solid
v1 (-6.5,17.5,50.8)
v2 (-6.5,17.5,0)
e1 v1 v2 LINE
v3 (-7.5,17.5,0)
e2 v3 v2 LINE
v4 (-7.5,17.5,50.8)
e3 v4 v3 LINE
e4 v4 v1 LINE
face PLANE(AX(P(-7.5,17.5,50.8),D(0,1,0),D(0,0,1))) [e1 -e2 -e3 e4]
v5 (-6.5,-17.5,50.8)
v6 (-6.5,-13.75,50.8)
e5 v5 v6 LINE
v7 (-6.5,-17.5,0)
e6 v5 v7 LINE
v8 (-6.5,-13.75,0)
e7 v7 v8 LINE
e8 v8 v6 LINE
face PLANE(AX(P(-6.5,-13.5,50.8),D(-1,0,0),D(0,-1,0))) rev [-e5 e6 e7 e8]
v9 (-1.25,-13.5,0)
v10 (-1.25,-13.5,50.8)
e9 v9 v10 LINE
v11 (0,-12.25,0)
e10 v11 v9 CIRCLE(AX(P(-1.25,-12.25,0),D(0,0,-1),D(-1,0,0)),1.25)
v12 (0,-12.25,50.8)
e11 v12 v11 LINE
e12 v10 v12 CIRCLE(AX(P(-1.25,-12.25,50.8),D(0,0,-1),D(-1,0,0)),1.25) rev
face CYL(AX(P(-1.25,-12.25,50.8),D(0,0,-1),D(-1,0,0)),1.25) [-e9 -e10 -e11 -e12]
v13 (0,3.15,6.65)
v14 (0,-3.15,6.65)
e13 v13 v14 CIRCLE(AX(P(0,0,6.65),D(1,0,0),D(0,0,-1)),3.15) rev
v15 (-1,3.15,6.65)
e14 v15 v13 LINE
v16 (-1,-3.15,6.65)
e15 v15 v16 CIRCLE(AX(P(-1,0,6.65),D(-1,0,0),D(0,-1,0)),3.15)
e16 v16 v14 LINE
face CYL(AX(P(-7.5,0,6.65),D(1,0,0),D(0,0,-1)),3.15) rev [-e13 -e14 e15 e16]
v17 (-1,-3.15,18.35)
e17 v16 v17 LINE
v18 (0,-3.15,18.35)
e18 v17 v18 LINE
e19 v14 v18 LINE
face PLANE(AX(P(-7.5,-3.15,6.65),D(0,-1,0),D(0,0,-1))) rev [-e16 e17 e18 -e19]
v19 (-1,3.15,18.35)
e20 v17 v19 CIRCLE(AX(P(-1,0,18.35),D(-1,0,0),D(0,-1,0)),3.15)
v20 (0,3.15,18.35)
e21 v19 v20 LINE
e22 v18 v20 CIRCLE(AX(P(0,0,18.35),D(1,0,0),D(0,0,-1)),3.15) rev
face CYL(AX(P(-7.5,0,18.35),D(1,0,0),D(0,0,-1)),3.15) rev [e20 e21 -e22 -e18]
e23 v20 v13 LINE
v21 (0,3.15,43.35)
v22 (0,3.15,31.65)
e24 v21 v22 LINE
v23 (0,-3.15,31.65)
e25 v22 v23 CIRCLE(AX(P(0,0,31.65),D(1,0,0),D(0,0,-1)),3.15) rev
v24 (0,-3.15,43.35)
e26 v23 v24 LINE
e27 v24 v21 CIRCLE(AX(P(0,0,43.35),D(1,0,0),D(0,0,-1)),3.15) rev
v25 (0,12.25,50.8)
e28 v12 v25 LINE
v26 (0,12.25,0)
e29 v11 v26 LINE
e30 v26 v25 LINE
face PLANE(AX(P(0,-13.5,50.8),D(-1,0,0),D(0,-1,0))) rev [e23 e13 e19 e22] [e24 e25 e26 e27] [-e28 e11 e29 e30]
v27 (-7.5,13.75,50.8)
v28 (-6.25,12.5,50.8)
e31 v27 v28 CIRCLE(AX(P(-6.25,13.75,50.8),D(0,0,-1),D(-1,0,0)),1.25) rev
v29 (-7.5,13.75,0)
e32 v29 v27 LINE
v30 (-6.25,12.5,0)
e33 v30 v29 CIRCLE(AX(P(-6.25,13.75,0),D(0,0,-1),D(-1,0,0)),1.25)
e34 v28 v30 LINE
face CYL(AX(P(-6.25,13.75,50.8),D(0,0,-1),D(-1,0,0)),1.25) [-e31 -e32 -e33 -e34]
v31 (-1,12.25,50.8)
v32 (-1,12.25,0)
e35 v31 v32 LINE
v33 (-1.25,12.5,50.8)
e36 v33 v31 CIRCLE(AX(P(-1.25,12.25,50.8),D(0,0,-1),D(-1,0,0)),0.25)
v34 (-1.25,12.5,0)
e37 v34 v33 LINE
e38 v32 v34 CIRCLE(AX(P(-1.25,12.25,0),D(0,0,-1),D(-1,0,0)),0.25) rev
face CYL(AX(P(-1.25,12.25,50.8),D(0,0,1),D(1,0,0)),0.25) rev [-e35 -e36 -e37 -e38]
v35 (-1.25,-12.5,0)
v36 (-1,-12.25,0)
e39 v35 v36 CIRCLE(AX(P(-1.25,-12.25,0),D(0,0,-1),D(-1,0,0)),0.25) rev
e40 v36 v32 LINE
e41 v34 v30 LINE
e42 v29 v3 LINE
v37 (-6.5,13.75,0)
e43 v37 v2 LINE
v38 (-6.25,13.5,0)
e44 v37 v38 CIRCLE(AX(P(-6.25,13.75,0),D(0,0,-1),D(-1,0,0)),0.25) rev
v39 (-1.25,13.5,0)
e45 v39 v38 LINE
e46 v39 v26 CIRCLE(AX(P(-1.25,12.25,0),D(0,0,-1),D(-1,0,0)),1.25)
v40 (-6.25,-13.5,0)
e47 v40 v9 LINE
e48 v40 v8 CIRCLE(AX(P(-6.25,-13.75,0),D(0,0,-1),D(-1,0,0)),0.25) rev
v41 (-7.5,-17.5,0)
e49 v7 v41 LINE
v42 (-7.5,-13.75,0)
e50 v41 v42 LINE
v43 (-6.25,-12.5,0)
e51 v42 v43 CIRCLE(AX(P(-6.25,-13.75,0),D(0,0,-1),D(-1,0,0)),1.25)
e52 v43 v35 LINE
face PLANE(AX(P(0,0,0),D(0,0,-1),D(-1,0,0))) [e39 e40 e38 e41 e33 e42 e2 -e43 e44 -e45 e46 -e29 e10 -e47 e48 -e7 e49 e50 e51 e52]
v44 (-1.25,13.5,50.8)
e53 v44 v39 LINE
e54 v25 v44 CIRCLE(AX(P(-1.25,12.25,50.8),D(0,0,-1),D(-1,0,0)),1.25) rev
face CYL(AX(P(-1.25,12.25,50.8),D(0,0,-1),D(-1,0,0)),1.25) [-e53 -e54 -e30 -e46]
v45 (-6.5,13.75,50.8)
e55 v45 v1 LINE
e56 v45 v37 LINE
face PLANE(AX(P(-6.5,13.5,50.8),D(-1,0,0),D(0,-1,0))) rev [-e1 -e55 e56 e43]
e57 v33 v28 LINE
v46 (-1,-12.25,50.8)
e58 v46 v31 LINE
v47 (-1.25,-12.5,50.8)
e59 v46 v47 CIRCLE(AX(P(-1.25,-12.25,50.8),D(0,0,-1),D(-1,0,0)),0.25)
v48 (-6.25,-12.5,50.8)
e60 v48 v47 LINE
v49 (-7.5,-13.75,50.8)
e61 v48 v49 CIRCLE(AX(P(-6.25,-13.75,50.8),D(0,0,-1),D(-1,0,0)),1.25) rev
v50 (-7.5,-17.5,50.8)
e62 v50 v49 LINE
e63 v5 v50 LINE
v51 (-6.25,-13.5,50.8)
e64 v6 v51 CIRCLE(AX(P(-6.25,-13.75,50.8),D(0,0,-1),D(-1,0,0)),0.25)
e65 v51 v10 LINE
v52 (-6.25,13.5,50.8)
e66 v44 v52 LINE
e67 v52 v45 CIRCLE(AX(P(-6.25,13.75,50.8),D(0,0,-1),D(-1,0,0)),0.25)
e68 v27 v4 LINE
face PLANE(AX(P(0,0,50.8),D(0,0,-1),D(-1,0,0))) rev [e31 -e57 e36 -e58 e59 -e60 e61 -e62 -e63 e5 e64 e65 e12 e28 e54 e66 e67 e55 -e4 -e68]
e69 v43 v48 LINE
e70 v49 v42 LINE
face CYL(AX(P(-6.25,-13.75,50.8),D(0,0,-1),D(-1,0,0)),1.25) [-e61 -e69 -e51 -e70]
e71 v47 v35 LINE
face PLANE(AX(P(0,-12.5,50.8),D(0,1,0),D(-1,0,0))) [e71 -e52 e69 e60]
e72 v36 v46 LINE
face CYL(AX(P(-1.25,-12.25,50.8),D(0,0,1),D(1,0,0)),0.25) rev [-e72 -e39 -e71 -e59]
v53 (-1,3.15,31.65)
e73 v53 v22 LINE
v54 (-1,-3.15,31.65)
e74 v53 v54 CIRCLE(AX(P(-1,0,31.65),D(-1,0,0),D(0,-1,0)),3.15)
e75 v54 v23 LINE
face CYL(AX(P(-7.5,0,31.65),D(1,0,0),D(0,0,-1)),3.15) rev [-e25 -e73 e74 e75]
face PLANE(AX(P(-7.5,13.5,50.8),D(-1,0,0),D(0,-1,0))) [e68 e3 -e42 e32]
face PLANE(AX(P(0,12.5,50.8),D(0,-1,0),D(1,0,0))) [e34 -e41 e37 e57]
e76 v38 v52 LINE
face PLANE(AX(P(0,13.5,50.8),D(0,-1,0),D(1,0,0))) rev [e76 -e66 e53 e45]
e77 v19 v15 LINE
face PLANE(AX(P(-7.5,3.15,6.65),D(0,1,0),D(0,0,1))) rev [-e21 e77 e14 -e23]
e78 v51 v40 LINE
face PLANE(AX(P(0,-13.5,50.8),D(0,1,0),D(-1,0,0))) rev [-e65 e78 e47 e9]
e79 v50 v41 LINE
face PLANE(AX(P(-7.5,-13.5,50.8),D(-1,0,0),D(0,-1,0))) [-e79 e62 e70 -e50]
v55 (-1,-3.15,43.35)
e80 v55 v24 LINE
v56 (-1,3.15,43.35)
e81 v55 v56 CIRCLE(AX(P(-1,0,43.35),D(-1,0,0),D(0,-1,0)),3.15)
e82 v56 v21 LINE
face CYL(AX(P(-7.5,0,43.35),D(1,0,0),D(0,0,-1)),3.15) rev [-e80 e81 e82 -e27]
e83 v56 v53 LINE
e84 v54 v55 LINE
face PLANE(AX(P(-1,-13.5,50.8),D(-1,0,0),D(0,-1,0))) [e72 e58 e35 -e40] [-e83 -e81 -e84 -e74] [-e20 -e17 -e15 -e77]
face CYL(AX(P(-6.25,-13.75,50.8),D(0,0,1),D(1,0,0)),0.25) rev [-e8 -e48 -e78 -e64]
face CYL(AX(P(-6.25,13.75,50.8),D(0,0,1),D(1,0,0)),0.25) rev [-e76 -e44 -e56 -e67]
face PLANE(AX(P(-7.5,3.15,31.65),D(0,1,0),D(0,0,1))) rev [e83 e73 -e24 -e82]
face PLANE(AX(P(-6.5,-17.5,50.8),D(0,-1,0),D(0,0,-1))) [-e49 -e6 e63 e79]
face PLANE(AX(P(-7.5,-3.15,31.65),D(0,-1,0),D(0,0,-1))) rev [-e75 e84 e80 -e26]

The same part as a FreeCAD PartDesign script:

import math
import FreeCAD as App
import Part
import Sketcher
from FreeCAD import Vector


def edges_at(feature, points):
    """Names of the edges that pass closest to the given points."""
    edges = feature.Shape.Edges
    near = lambda p: min(range(len(edges)), key=lambda i: edges[i].distToShape(Part.Vertex(*p))[0])
    return sorted({f"Edge{near(p) + 1}" for p in points})

doc = App.newDocument("Part")
params = doc.addObject("Spreadsheet::Sheet", "Params")
for row, (alias, value) in enumerate([
    ("sketch1_width", "1 mm"),
    ("sketch1_height", "4 mm"),
    ("sketch1_height2", "5 mm"),
    ("sketch1_height3", "25 mm"),
    ("sketch1_width2", "6.5 mm"),
    ("pad1_length", "50.8 mm"),
    ("sketch2_radius", "3.15 mm"),
    ("sketch2_height", "11.7 mm"),
    ("pocket1_length", "110.501429 mm"),
    ("linearpattern_pitch", "25 mm"),
    ("fillet_radius", "0.25 mm"),
    ("fillet2_radius", "1.25 mm"),
], start=1):
    params.set(f"A{row}", alias)
    params.set(f"B{row}", "=" + value)
    params.setAlias(f"B{row}", alias)

body = doc.addObject("PartDesign::Body", "Body")

sketch1 = body.newObject("Sketcher::SketchObject", "Sketch")
sketch1.AttachmentSupport = (doc.getObject("XY_Plane"), [""])
sketch1.MapMode = "FlatFace"
sketch1.addGeometry(Part.LineSegment(Vector(-6.5, 13.5, 0), Vector(-6.5, 17.5, 0)), False)
sketch1.addGeometry(Part.LineSegment(Vector(-6.5, 17.5, 0), Vector(-7.5, 17.5, 0)), False)
sketch1.addGeometry(Part.LineSegment(Vector(-7.5, 17.5, 0), Vector(-7.5, 12.5, 0)), False)
sketch1.addGeometry(Part.LineSegment(Vector(-7.5, 12.5, 0), Vector(-1, 12.5, 0)), False)
sketch1.addGeometry(Part.LineSegment(Vector(-1, 12.5, 0), Vector(-1, -12.5, 0)), False)
sketch1.addGeometry(Part.LineSegment(Vector(-1, -12.5, 0), Vector(-7.5, -12.5, 0)), False)
sketch1.addGeometry(Part.LineSegment(Vector(-7.5, -12.5, 0), Vector(-7.5, -17.5, 0)), False)
sketch1.addGeometry(Part.LineSegment(Vector(-7.5, -17.5, 0), Vector(-6.5, -17.5, 0)), False)
sketch1.addGeometry(Part.LineSegment(Vector(-6.5, -17.5, 0), Vector(-6.5, -13.5, 0)), False)
sketch1.addGeometry(Part.LineSegment(Vector(-6.5, -13.5, 0), Vector(0, -13.5, 0)), False)
sketch1.addGeometry(Part.LineSegment(Vector(0, -13.5, 0), Vector(0, 13.5, 0)), False)
sketch1.addGeometry(Part.LineSegment(Vector(0, 13.5, 0), Vector(-6.5, 13.5, 0)), False)
sketch1.addConstraint(Sketcher.Constraint("Coincident", 0, 2, 1, 1))
sketch1.addConstraint(Sketcher.Constraint("Coincident", 1, 2, 2, 1))
sketch1.addConstraint(Sketcher.Constraint("Coincident", 2, 2, 3, 1))
sketch1.addConstraint(Sketcher.Constraint("Coincident", 3, 2, 4, 1))
sketch1.addConstraint(Sketcher.Constraint("Coincident", 4, 2, 5, 1))
sketch1.addConstraint(Sketcher.Constraint("Coincident", 5, 2, 6, 1))
sketch1.addConstraint(Sketcher.Constraint("Coincident", 6, 2, 7, 1))
sketch1.addConstraint(Sketcher.Constraint("Coincident", 7, 2, 8, 1))
sketch1.addConstraint(Sketcher.Constraint("Coincident", 8, 2, 9, 1))
sketch1.addConstraint(Sketcher.Constraint("Coincident", 9, 2, 10, 1))
sketch1.addConstraint(Sketcher.Constraint("Coincident", 10, 2, 11, 1))
sketch1.addConstraint(Sketcher.Constraint("Coincident", 11, 2, 0, 1))
sketch1.addConstraint(Sketcher.Constraint("Vertical", 0))
sketch1.addConstraint(Sketcher.Constraint("Horizontal", 1))
sketch1.addConstraint(Sketcher.Constraint("Vertical", 2))
sketch1.addConstraint(Sketcher.Constraint("Horizontal", 3))
sketch1.addConstraint(Sketcher.Constraint("Vertical", 4))
sketch1.addConstraint(Sketcher.Constraint("Horizontal", 5))
sketch1.addConstraint(Sketcher.Constraint("Vertical", 6))
sketch1.addConstraint(Sketcher.Constraint("Horizontal", 7))
sketch1.addConstraint(Sketcher.Constraint("Vertical", 8))
sketch1.addConstraint(Sketcher.Constraint("Horizontal", 9))
sketch1.addConstraint(Sketcher.Constraint("Vertical", 10))
sketch1.addConstraint(Sketcher.Constraint("Horizontal", 11))
sketch1.addConstraint(Sketcher.Constraint("Symmetric", 9, 2, 10, 2, -1, 1))
sketch1.addConstraint(Sketcher.Constraint("Symmetric", 2, 2, 5, 2, -1))
sketch1.addConstraint(Sketcher.Constraint("Symmetric", 0, 2, 7, 2, -1))
sketch1.addConstraint(Sketcher.Constraint("Equal", 5, 9))
sketch1.addConstraint(Sketcher.Constraint("DistanceX", 1, 2, 1, 1, 1.0))
sketch1.addConstraint(Sketcher.Constraint("DistanceY", 0, 1, 0, 2, 4.0))
sketch1.addConstraint(Sketcher.Constraint("DistanceY", 2, 2, 2, 1, 5.0))
sketch1.addConstraint(Sketcher.Constraint("DistanceY", 4, 2, 4, 1, 25.0))
sketch1.addConstraint(Sketcher.Constraint("DistanceX", 3, 1, 3, 2, 6.5))
sketch1.setExpression("Constraints[28]", "Params.sketch1_width")
sketch1.setExpression("Constraints[29]", "Params.sketch1_height")
sketch1.setExpression("Constraints[30]", "Params.sketch1_height2")
sketch1.setExpression("Constraints[31]", "Params.sketch1_height3")
sketch1.setExpression("Constraints[32]", "Params.sketch1_width2")
pad1 = body.newObject("PartDesign::Pad", "Pad")
pad1.Profile = sketch1
pad1.setExpression("Length", "Params.pad1_length")

sketch2 = body.newObject("Sketcher::SketchObject", "Sketch001")
sketch2.AttachmentSupport = (doc.getObject("YZ_Plane"), [""])
sketch2.MapMode = "FlatFace"
sketch2.addGeometry(Part.LineSegment(Vector(-3.1, 18.4, 0), Vector(-3.1, 6.7, 0)), False)
sketch2.addGeometry(Part.ArcOfCircle(Part.Circle(Vector(0, 6.7, 0), Vector(0, 0, 1), 3.1), math.radians(180), math.radians(360)), False)
sketch2.addGeometry(Part.LineSegment(Vector(3.1, 6.7, 0), Vector(3.1, 18.4, 0)), False)
sketch2.addGeometry(Part.ArcOfCircle(Part.Circle(Vector(0, 18.4, 0), Vector(0, 0, 1), 3.1), math.radians(0), math.radians(180)), False)
sketch2.addConstraint(Sketcher.Constraint("Tangent", 0, 2, 1, 1))
sketch2.addConstraint(Sketcher.Constraint("Tangent", 1, 2, 2, 1))
sketch2.addConstraint(Sketcher.Constraint("Tangent", 2, 2, 3, 1))
sketch2.addConstraint(Sketcher.Constraint("Tangent", 3, 2, 0, 1))
sketch2.addConstraint(Sketcher.Constraint("Vertical", 0))
sketch2.addConstraint(Sketcher.Constraint("Vertical", 2))
sketch2.addConstraint(Sketcher.Constraint("PointOnObject", 1, 3, -2))
sketch2.addConstraint(Sketcher.Constraint("Radius", 1, 3.15))
sketch2.addConstraint(Sketcher.Constraint("DistanceY", 0, 2, 0, 1, 11.7))
sketch2.addConstraint(Sketcher.Constraint("DistanceY", -1, 1, 1, 3, 6.65))
sketch2.setExpression("Constraints[7]", "Params.sketch2_radius")
sketch2.setExpression("Constraints[8]", "Params.sketch2_height")
pocket1 = body.newObject("PartDesign::Pocket", "Pocket")
pocket1.Profile = sketch2
pocket1.setExpression("Length", "Params.pocket1_length")
pocket1.Midplane = True
doc.recompute()

linearpattern = body.newObject("PartDesign::LinearPattern", "LinearPattern")
linearpattern.Originals = [pocket1]
linearpattern.Direction = (doc.getObject("Z_Axis"), [""])
linearpattern.Mode = "offset"
linearpattern.setExpression("Offset", "Params.linearpattern_pitch")
linearpattern.Occurrences = 2
body.Tip = linearpattern
doc.recompute()

fillet = body.newObject("PartDesign::Fillet", "Fillet")
fillet.Base = (linearpattern, edges_at(linearpattern, [
    (-6.5, 13.5, 25.4),
    (-6.5, -13.5, 25.4),
    (-1, -12.5, 25.4),
    (-1, 12.5, 25.4),
]))
fillet.setExpression("Radius", "Params.fillet_radius")
doc.recompute()

fillet2 = body.newObject("PartDesign::Fillet", "Fillet001")
fillet2.Base = (fillet, edges_at(fillet, [
    (0, 13.5, 25.4),
    (0, -13.5, 25.4),
    (-7.5, -12.5, 25.4),
    (-7.5, 12.5, 25.4),
]))
fillet2.setExpression("Radius", "Params.fillet2_radius")

doc.recompute()
